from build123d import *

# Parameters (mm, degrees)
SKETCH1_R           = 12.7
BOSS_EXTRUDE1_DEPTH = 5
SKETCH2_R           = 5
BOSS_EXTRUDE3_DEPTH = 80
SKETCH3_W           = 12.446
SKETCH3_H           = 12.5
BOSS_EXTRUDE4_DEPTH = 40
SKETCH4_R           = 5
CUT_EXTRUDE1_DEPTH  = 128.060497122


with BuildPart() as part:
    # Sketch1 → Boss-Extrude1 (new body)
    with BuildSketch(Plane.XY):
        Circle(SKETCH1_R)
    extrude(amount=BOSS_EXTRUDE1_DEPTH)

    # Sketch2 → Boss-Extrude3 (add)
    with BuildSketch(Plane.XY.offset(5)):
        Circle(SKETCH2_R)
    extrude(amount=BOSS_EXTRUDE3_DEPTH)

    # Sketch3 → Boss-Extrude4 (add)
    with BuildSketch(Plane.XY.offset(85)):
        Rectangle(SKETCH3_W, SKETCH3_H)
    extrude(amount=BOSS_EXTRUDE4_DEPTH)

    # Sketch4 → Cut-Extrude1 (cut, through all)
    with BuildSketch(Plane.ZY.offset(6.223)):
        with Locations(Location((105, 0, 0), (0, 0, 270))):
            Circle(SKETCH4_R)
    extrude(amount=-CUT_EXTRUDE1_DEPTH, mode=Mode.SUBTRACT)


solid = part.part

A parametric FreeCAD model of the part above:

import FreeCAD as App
import Part
import Sketcher
from FreeCAD import Vector

doc = App.newDocument("Part")
params = doc.addObject("Spreadsheet::Sheet", "Params")
for row, (alias, value) in enumerate([
    ("sketch1_diameter", "25.4 mm"),
    ("pad1_length", "5 mm"),
    ("sketch2_diameter", "10 mm"),
    ("pad2_length", "80 mm"),
    ("sketch3_height", "12.5 mm"),
    ("pad3_length", "40 mm"),
    ("sketch4_diameter", "10 mm"),
], start=1):
    params.set(f"A{row}", alias)
    params.set(f"B{row}", "=" + value)
    params.setAlias(f"B{row}", alias)

body = doc.addObject("PartDesign::Body", "Body")

# Sketch on XY plane
sketch1 = doc.addObject("Sketcher::SketchObject", "Sketch")
body.addObject(sketch1)
sketch1.AttachmentSupport = (doc.XY_Plane, [""])
sketch1.MapMode = "FlatFace"
sketch1.addGeometry(Part.Circle(Vector(0, 0, 0), Vector(0, 0, 1), 13), False)
sketch1.addConstraint([
    Sketcher.Constraint("Coincident", 0, 3, -1, 1),
    Sketcher.Constraint("Diameter", 0, 25.4),
])
sketch1.setExpression("Constraints[1]", "Params.sketch1_diameter")
pad1 = doc.addObject("PartDesign::Pad", "Pad")
body.addObject(pad1)
pad1.Profile = sketch1
pad1.setExpression("Length", "Params.pad1_length")

# Sketch on XY plane
sketch2 = doc.addObject("Sketcher::SketchObject", "Sketch001")
body.addObject(sketch2)
sketch2.AttachmentSupport = (doc.XY_Plane, [""])
sketch2.MapMode = "FlatFace"
sketch2.AttachmentOffset = App.Placement(Vector(0, 0, 5), App.Rotation())
sketch2.addGeometry(Part.Circle(Vector(0, 0, 0), Vector(0, 0, 1), 5), False)
sketch2.addConstraint([
    Sketcher.Constraint("Coincident", 0, 3, -1, 1),
    Sketcher.Constraint("Diameter", 0, 10.0),
])
sketch2.setExpression("Constraints[1]", "Params.sketch2_diameter")
pad2 = doc.addObject("PartDesign::Pad", "Pad001")
body.addObject(pad2)
pad2.Profile = sketch2
pad2.setExpression("Length", "Params.pad2_length")

# Sketch on XY plane
sketch3 = doc.addObject("Sketcher::SketchObject", "Sketch002")
body.addObject(sketch3)
sketch3.AttachmentSupport = (doc.XY_Plane, [""])
sketch3.MapMode = "FlatFace"
sketch3.AttachmentOffset = App.Placement(Vector(0, 0, 85), App.Rotation())
sketch3.addGeometry([
    Part.LineSegment(Vector(-6, 6, 0), Vector(-6, -6, 0)),
    Part.LineSegment(Vector(-6, -6, 0), Vector(6, -6, 0)),
    Part.LineSegment(Vector(6, -6, 0), Vector(6, 6, 0)),
    Part.LineSegment(Vector(6, 6, 0), Vector(-6, 6, 0)),
], False)
sketch3.addConstraint([
    Sketcher.Constraint("Coincident", 0, 2, 1, 1),
    Sketcher.Constraint("Coincident", 1, 2, 2, 1),
    Sketcher.Constraint("Coincident", 2, 2, 3, 1),
    Sketcher.Constraint("Coincident", 3, 2, 0, 1),
    Sketcher.Constraint("Vertical", 0),
    Sketcher.Constraint("Horizontal", 1),
    Sketcher.Constraint("Vertical", 2),
    Sketcher.Constraint("Horizontal", 3),
    Sketcher.Constraint("Symmetric", 0, 2, 2, 2, -1, 1),
    Sketcher.Constraint("DistanceY", 0, 2, 0, 1, 12.5),
    Sketcher.Constraint("DistanceX", 1, 1, 1, 2, 12.446),
])
sketch3.setExpression("Constraints[9]", "Params.sketch3_height")
pad3 = doc.addObject("PartDesign::Pad", "Pad002")
body.addObject(pad3)
pad3.Profile = sketch3
pad3.setExpression("Length", "Params.pad3_length")

# Sketch on YZ plane
sketch4 = doc.addObject("Sketcher::SketchObject", "Sketch003")
body.addObject(sketch4)
sketch4.AttachmentSupport = (doc.YZ_Plane, [""])
sketch4.MapMode = "FlatFace"
sketch4.AttachmentOffset = App.Placement(Vector(0, 0, -6.223), App.Rotation())
sketch4.addGeometry(Part.Circle(Vector(0, 105, 0), Vector(0, 0, 1), 5), False)
sketch4.addConstraint([
    Sketcher.Constraint("PointOnObject", 0, 3, -2),
    Sketcher.Constraint("Diameter", 0, 10.0),
    Sketcher.Constraint("DistanceY", -1, 1, 0, 3, 105.0),
])
sketch4.setExpression("Constraints[1]", "Params.sketch4_diameter")
pocket1 = doc.addObject("PartDesign::Pocket", "Pocket")
body.addObject(pocket1)
pocket1.Profile = sketch4
pocket1.Type = "ThroughAll"
pocket1.Reversed = True

doc.recompute()
